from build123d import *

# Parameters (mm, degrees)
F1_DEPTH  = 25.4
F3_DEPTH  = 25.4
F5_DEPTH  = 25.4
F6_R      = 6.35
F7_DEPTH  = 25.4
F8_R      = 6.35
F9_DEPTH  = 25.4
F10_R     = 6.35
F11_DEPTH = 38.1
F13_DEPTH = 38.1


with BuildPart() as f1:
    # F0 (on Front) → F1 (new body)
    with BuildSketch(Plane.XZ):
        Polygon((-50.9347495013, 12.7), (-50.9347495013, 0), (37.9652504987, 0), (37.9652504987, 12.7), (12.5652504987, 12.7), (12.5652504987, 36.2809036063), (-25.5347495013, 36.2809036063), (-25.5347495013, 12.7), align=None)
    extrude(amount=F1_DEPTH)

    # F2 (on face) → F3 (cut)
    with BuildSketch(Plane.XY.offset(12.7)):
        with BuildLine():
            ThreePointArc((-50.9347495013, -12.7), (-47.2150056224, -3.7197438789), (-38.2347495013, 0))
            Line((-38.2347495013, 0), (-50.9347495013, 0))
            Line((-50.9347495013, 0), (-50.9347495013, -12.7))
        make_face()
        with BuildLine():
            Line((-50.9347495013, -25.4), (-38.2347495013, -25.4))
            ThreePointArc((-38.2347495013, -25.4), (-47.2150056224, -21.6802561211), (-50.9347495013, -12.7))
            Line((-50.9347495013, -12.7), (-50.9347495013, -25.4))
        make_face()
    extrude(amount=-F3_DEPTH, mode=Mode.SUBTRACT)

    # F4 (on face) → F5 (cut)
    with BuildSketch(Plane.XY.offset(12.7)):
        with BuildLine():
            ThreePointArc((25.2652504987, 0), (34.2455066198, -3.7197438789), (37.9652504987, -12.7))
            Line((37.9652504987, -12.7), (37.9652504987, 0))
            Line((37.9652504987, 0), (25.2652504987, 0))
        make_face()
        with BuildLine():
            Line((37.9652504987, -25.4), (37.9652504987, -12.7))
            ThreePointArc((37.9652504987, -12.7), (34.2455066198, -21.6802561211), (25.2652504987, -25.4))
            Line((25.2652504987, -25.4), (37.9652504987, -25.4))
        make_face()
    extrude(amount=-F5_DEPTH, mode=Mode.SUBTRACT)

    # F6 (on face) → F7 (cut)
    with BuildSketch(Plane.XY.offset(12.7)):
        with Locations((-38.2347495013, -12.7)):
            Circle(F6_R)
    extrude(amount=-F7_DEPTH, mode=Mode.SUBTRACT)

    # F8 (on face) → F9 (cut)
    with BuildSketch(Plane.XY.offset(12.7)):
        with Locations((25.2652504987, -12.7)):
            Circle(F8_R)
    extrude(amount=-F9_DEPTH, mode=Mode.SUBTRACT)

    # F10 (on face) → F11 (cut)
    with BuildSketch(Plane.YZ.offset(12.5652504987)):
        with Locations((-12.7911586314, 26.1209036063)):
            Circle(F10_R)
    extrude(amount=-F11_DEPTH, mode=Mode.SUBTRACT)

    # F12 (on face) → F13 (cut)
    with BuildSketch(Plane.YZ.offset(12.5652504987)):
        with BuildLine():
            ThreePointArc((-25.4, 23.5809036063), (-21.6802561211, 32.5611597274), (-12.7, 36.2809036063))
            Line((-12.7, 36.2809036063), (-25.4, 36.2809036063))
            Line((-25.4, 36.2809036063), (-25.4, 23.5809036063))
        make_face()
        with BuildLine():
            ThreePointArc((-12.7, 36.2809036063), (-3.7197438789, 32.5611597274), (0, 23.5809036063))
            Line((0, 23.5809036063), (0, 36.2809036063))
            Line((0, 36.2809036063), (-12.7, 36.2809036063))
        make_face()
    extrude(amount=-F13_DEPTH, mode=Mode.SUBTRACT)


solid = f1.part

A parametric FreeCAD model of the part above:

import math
import FreeCAD as App
import Part
import Sketcher
from FreeCAD import Vector
Q = App.Units.Quantity

doc = App.newDocument("Part")
body = doc.addObject("PartDesign::Body", "Body")

# Sketch on XZ plane
sketch1 = body.newObject("Sketcher::SketchObject", "Sketch")
sketch1.AttachmentSupport = (doc.getObject("XZ_Plane"), [""])
sketch1.MapMode = "FlatFace"
sketch1.addGeometry([
    Part.LineSegment(Vector(-51, 13, 0), Vector(-51, 0, 0)),  # 0
    Part.LineSegment(Vector(-51, 0, 0), Vector(38, 0, 0)),  # 1
    Part.LineSegment(Vector(38, 0, 0), Vector(38, 13, 0)),  # 2
    Part.LineSegment(Vector(38, 13, 0), Vector(13, 13, 0)),  # 3
    Part.LineSegment(Vector(13, 13, 0), Vector(13, 36, 0)),  # 4
    Part.LineSegment(Vector(13, 36, 0), Vector(-26, 36, 0)),  # 5
    Part.LineSegment(Vector(-26, 36, 0), Vector(-26, 13, 0)),  # 6
    Part.LineSegment(Vector(-26, 13, 0), Vector(-51, 13, 0)),  # 7
], False)
sketch1.addConstraint([
    Sketcher.Constraint("Coincident", 0, 2, 1, 1),
    Sketcher.Constraint("Coincident", 1, 2, 2, 1),
    Sketcher.Constraint("Coincident", 2, 2, 3, 1),
    Sketcher.Constraint("Coincident", 3, 2, 4, 1),
    Sketcher.Constraint("Coincident", 4, 2, 5, 1),
    Sketcher.Constraint("Coincident", 5, 2, 6, 1),
    Sketcher.Constraint("Coincident", 6, 2, 7, 1),
    Sketcher.Constraint("Coincident", 7, 2, 0, 1),
    Sketcher.Constraint("Vertical", 0),
    Sketcher.Constraint("Horizontal", 1),
    Sketcher.Constraint("Vertical", 2),
    Sketcher.Constraint("Horizontal", 3),
    Sketcher.Constraint("Vertical", 4),
    Sketcher.Constraint("Horizontal", 5),
    Sketcher.Constraint("Vertical", 6),
    Sketcher.Constraint("Horizontal", 7),
    Sketcher.Constraint("PointOnObject", 0, 2, -1),
    Sketcher.Constraint("Horizontal", 3, 2, 6, 2),
    Sketcher.Constraint("Equal", 3, 7),
    Sketcher.Constraint("DistanceX", 3, 2, 3, 1, Q("1 in")),
    Sketcher.Constraint("DistanceX", 1, 1, 1, 2, Q("3.5 in")),
    Sketcher.Constraint("DistanceY", 0, 2, 0, 1, Q("0.5 in")),
    Sketcher.Constraint("DistanceY", 4, 1, 4, 2, 23.580904),
    Sketcher.Constraint("DistanceX", 0, 2, -1, 1, 50.93475),
])
pad1 = body.newObject("PartDesign::Pad", "Pad")
pad1.Profile = sketch1
pad1.Length = Q("1 in")

# Sketch on XY plane
sketch2 = body.newObject("Sketcher::SketchObject", "Sketch001")
sketch2.AttachmentSupport = (doc.getObject("XY_Plane"), [""])
sketch2.MapMode = "FlatFace"
sketch2.AttachmentOffset = App.Placement(Vector(0, 0, 0.5 * 25.4), App.Rotation())
sketch2.addGeometry([
    Part.ArcOfCircle(Part.Circle(Vector(-38, -13, 0), Vector(0, 0, 1), 13), math.radians(90), math.radians(180)),  # 0
    Part.LineSegment(Vector(-38, 0, 0), Vector(-51, 0, 0)),  # 1
    Part.LineSegment(Vector(-51, 0, 0), Vector(-51, -13, 0)),  # 2
    Part.LineSegment(Vector(-51, -25, 0), Vector(-38, -25, 0)),  # 3
    Part.ArcOfCircle(Part.Circle(Vector(-38, -13, 0), Vector(0, 0, 1), 13), math.radians(180), math.radians(270)),  # 4
    Part.LineSegment(Vector(-51, -13, 0), Vector(-51, -25, 0)),  # 5
], False)
sketch2.addConstraint([
    Sketcher.Constraint("Tangent", 0, 1, 1, 1),
    Sketcher.Constraint("Coincident", 1, 2, 2, 1),
    Sketcher.Constraint("Tangent", 2, 2, 0, 2),
    Sketcher.Constraint("Tangent", 3, 2, 4, 2),
    Sketcher.Constraint("Tangent", 4, 1, 5, 1),
    Sketcher.Constraint("Coincident", 5, 2, 3, 1),
    Sketcher.Constraint("Horizontal", 1),
    Sketcher.Constraint("Vertical", 2),
    Sketcher.Constraint("Horizontal", 3),
    Sketcher.Constraint("Vertical", 5),
    Sketcher.Constraint("Coincident", 4, 3, 0, 3),
    Sketcher.Constraint("Equal", 0, 4),
    Sketcher.Constraint("PointOnObject", 0, 1, -1),
    Sketcher.Constraint("Radius", 0, Q("0.5 in")),
    Sketcher.Constraint("DistanceX", 0, 3, -1, 1, 38.23475),
])
pocket1 = body.newObject("PartDesign::Pocket", "Pocket")
pocket1.Profile = sketch2
pocket1.Length = Q("1 in")

# Sketch on XY plane
sketch3 = body.newObject("Sketcher::SketchObject", "Sketch002")
sketch3.AttachmentSupport = (doc.getObject("XY_Plane"), [""])
sketch3.MapMode = "FlatFace"
sketch3.AttachmentOffset = App.Placement(Vector(0, 0, 0.5 * 25.4), App.Rotation())
sketch3.addGeometry([
    Part.ArcOfCircle(Part.Circle(Vector(25, -13, 0), Vector(0, 0, 1), 13), math.radians(0), math.radians(90)),  # 0
    Part.LineSegment(Vector(38, -13, 0), Vector(38, 0, 0)),  # 1
    Part.LineSegment(Vector(38, 0, 0), Vector(25, 0, 0)),  # 2
    Part.LineSegment(Vector(38, -25, 0), Vector(38, -13, 0)),  # 3
    Part.ArcOfCircle(Part.Circle(Vector(25, -13, 0), Vector(0, 0, 1), 13), math.radians(-90), math.radians(0)),  # 4
    Part.LineSegment(Vector(25, -25, 0), Vector(38, -25, 0)),  # 5
], False)
sketch3.addConstraint([
    Sketcher.Constraint("Tangent", 0, 1, 1, 1),
    Sketcher.Constraint("Coincident", 1, 2, 2, 1),
    Sketcher.Constraint("Tangent", 2, 2, 0, 2),
    Sketcher.Constraint("Tangent", 3, 2, 4, 2),
    Sketcher.Constraint("Tangent", 4, 1, 5, 1),
    Sketcher.Constraint("Coincident", 5, 2, 3, 1),
    Sketcher.Constraint("Vertical", 1),
    Sketcher.Constraint("Horizontal", 2),
    Sketcher.Constraint("Vertical", 3),
    Sketcher.Constraint("Horizontal", 5),
    Sketcher.Constraint("Coincident", 4, 3, 0, 3),
    Sketcher.Constraint("Equal", 0, 4),
    Sketcher.Constraint("PointOnObject", 1, 2, -1),
    Sketcher.Constraint("Radius", 0, Q("0.5 in")),
    Sketcher.Constraint("DistanceX", -1, 1, 0, 3, 25.26525),
])
pocket2 = body.newObject("PartDesign::Pocket", "Pocket001")
pocket2.Profile = sketch3
pocket2.Length = Q("1 in")

# Sketch on XY plane
sketch4 = body.newObject("Sketcher::SketchObject", "Sketch003")
sketch4.AttachmentSupport = (doc.getObject("XY_Plane"), [""])
sketch4.MapMode = "FlatFace"
sketch4.AttachmentOffset = App.Placement(Vector(0, 0, 0.5 * 25.4), App.Rotation())
sketch4.addGeometry(Part.Circle(Vector(-38, -13, 0), Vector(0, 0, 1), 6), False)
sketch4.addConstraint([
    Sketcher.Constraint("Diameter", 0, Q("0.5 in")),
    Sketcher.Constraint("DistanceY", 0, 3, -1, 1, Q("0.5 in")),
    Sketcher.Constraint("DistanceX", 0, 3, -1, 1, 38.23475),
])
pocket3 = body.newObject("PartDesign::Pocket", "Pocket002")
pocket3.Profile = sketch4
pocket3.Length = Q("1 in")

# Sketch on XY plane
sketch5 = body.newObject("Sketcher::SketchObject", "Sketch004")
sketch5.AttachmentSupport = (doc.getObject("XY_Plane"), [""])
sketch5.MapMode = "FlatFace"
sketch5.AttachmentOffset = App.Placement(Vector(0, 0, 0.5 * 25.4), App.Rotation())
sketch5.addGeometry(Part.Circle(Vector(25, -13, 0), Vector(0, 0, 1), 6), False)
sketch5.addConstraint([
    Sketcher.Constraint("Diameter", 0, Q("0.5 in")),
    Sketcher.Constraint("DistanceY", 0, 3, -1, 1, Q("0.5 in")),
    Sketcher.Constraint("DistanceX", -1, 1, 0, 3, 25.26525),
])
pocket4 = body.newObject("PartDesign::Pocket", "Pocket003")
pocket4.Profile = sketch5
pocket4.Length = Q("1 in")

# Sketch on YZ plane
sketch6 = body.newObject("Sketcher::SketchObject", "Sketch005")
sketch6.AttachmentSupport = (doc.getObject("YZ_Plane"), [""])
sketch6.MapMode = "FlatFace"
sketch6.AttachmentOffset = App.Placement(Vector(0, 0, 12.56525), App.Rotation())
sketch6.addGeometry(Part.Circle(Vector(-13, 26, 0), Vector(0, 0, 1), 6), False)
sketch6.addConstraint([
    Sketcher.Constraint("Diameter", 0, Q("0.5 in")),
    Sketcher.Constraint("DistanceX", 0, 3, -1, 1, 12.791159),
    Sketcher.Constraint("DistanceY", -1, 1, 0, 3, 26.120904),
])
pocket5 = body.newObject("PartDesign::Pocket", "Pocket004")
pocket5.Profile = sketch6
pocket5.Length = Q("1.5 in")

# Sketch on YZ plane
sketch7 = body.newObject("Sketcher::SketchObject", "Sketch006")
sketch7.AttachmentSupport = (doc.getObject("YZ_Plane"), [""])
sketch7.MapMode = "FlatFace"
sketch7.AttachmentOffset = App.Placement(Vector(0, 0, 12.56525), App.Rotation())
sketch7.addGeometry([
    Part.ArcOfCircle(Part.Circle(Vector(-13, 24, 0), Vector(0, 0, 1), 13), math.radians(90), math.radians(180)),  # 0
    Part.LineSegment(Vector(-13, 36, 0), Vector(-25, 36, 0)),  # 1
    Part.LineSegment(Vector(-25, 36, 0), Vector(-25, 24, 0)),  # 2
    Part.ArcOfCircle(Part.Circle(Vector(-13, 24, 0), Vector(0, 0, 1), 13), math.radians(0), math.radians(90)),  # 3
    Part.LineSegment(Vector(0, 24, 0), Vector(0, 36, 0)),  # 4
    Part.LineSegment(Vector(0, 36, 0), Vector(-13, 36, 0)),  # 5
], False)
sketch7.addConstraint([
    Sketcher.Constraint("Tangent", 0, 1, 1, 1),
    Sketcher.Constraint("Coincident", 1, 2, 2, 1),
    Sketcher.Constraint("Tangent", 2, 2, 0, 2),
    Sketcher.Constraint("Tangent", 3, 1, 4, 1),
    Sketcher.Constraint("Coincident", 4, 2, 5, 1),
    Sketcher.Constraint("Tangent", 5, 2, 3, 2),
    Sketcher.Constraint("Horizontal", 1),
    Sketcher.Constraint("Vertical", 2),
    Sketcher.Constraint("Vertical", 4),
    Sketcher.Constraint("Horizontal", 5),
    Sketcher.Constraint("Coincident", 3, 3, 0, 3),
    Sketcher.Constraint("Equal", 0, 3),
    Sketcher.Constraint("PointOnObject", 3, 1, -2),
    Sketcher.Constraint("Radius", 0, Q("0.5 in")),
    Sketcher.Constraint("DistanceY", -1, 1, 0, 3, 23.580904),
])
pocket6 = body.newObject("PartDesign::Pocket", "Pocket005")
pocket6.Profile = sketch7
pocket6.Length = Q("1.5 in")

doc.recompute()
